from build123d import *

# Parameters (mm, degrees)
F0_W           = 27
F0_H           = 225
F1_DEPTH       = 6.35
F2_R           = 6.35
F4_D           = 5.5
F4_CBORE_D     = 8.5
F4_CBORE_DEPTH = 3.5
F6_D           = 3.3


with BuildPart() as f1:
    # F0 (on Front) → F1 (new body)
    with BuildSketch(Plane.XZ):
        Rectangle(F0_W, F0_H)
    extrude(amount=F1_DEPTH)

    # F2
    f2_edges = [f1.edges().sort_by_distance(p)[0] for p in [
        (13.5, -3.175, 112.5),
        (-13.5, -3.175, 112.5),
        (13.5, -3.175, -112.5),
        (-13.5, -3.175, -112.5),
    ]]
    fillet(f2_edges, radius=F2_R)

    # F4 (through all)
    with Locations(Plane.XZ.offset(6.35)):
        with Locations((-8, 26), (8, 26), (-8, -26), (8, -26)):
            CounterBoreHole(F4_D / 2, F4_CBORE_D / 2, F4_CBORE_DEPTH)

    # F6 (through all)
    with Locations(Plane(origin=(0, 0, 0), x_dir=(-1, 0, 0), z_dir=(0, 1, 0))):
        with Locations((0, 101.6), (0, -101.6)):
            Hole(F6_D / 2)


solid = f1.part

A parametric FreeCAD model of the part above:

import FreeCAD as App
import Part
import Sketcher
from FreeCAD import Vector
Q = App.Units.Quantity


def edges_at(feature, points):
    """Names of the edges that pass closest to the given points."""
    edges = feature.Shape.Edges
    near = lambda p: min(range(len(edges)), key=lambda i: edges[i].distToShape(Part.Vertex(*p))[0])
    return sorted({f"Edge{near(p) + 1}" for p in points})


def add_polygon(sketch, points):
    """Adds a closed chain of lines whose ends are joined by coincident constraints."""
    first, n = sketch.GeometryCount, len(points)
    for a, b in zip(points, points[1:] + points[:1]):
        sketch.addGeometry(Part.LineSegment(App.Vector(*a, 0), App.Vector(*b, 0)), False)
    for i in range(n):
        sketch.addConstraint(Sketcher.Constraint("Coincident", first + i, 2, first + (i + 1) % n, 1))

doc = App.newDocument("Part")
body = doc.addObject("PartDesign::Body", "Body")

# Sketch on XZ plane
sketch1 = body.newObject("Sketcher::SketchObject", "Sketch")
sketch1.AttachmentSupport = (doc.getObject("XZ_Plane"), [""])
sketch1.MapMode = "FlatFace"
add_polygon(sketch1, [(-14, 112), (-14, -112), (14, -112), (14, 112)])  # lines 0-3
sketch1.addConstraint(Sketcher.Constraint("Vertical", 0))
sketch1.addConstraint(Sketcher.Constraint("Horizontal", 1))
sketch1.addConstraint(Sketcher.Constraint("Vertical", 2))
sketch1.addConstraint(Sketcher.Constraint("Horizontal", 3))
sketch1.addConstraint(Sketcher.Constraint("Symmetric", 0, 2, 2, 2, -1, 1))
sketch1.addConstraint(Sketcher.Constraint("DistanceX", 1, 1, 1, 2, Q("27 mm")))
sketch1.addConstraint(Sketcher.Constraint("DistanceY", 0, 2, 0, 1, Q("225 mm")))
pad1 = body.newObject("PartDesign::Pad", "Pad")
pad1.Profile = sketch1
pad1.Length = 6.35
doc.recompute()

fillet = body.newObject("PartDesign::Fillet", "Fillet")
fillet.Base = (pad1, edges_at(pad1, [
    (13.5, -3.175, 112.5),
    (-13.5, -3.175, 112.5),
    (13.5, -3.175, -112.5),
    (-13.5, -3.175, -112.5),
]))
fillet.Radius = 6.35

# Sketch on XZ plane
sketch2 = body.newObject("Sketcher::SketchObject", "Sketch001")
sketch2.AttachmentSupport = (doc.getObject("XZ_Plane"), [""])
sketch2.MapMode = "FlatFace"
sketch2.AttachmentOffset = App.Placement(Vector(0, 0, 6.35), App.Rotation())
sketch2.addGeometry(Part.Circle(Vector(-8, 26, 0), Vector(0, 0, 1), 2.8), False)
sketch2.addGeometry(Part.Circle(Vector(8, 26, 0), Vector(0, 0, 1), 2.8), False)
sketch2.addGeometry(Part.Circle(Vector(-8, -26, 0), Vector(0, 0, 1), 2.8), False)
sketch2.addGeometry(Part.Circle(Vector(8, -26, 0), Vector(0, 0, 1), 2.8), False)
sketch2.addConstraint(Sketcher.Constraint("Equal", 0, 1))
sketch2.addConstraint(Sketcher.Constraint("Equal", 1, 2))
sketch2.addConstraint(Sketcher.Constraint("Equal", 2, 3))
sketch2.addConstraint(Sketcher.Constraint("Symmetric", 1, 3, 2, 3, -1, 1))
sketch2.addConstraint(Sketcher.Constraint("Symmetric", 0, 3, 3, 3, -1, 1))
sketch2.addConstraint(Sketcher.Constraint("Symmetric", 0, 3, 1, 3, -2))
sketch2.addConstraint(Sketcher.Constraint("Diameter", 0, Q("5.5 mm")))
sketch2.addConstraint(Sketcher.Constraint("DistanceX", 0, 3, -1, 1, Q("8 mm")))
sketch2.addConstraint(Sketcher.Constraint("DistanceY", -1, 1, 0, 3, Q("26 mm")))
doc.recompute()
hole = body.newObject("PartDesign::Hole", "Hole")
hole.Profile = sketch2
hole.ThreadType = "None"
hole.Diameter = 5.5
hole.DepthType = "ThroughAll"
hole.HoleCutType = "Counterbore"
hole.HoleCutDiameter = 8.5
hole.HoleCutDepth = 3.5

# Sketch on XZ plane
sketch3 = body.newObject("Sketcher::SketchObject", "Sketch002")
sketch3.AttachmentSupport = (doc.getObject("XZ_Plane"), [""])
sketch3.MapMode = "FlatFace"
sketch3.addGeometry(Part.Circle(Vector(0, 101.6, 0), Vector(0, 0, 1), 1.6), False)
sketch3.addGeometry(Part.Circle(Vector(0, -101.6, 0), Vector(0, 0, 1), 1.6), False)
sketch3.addConstraint(Sketcher.Constraint("Equal", 0, 1))
sketch3.addConstraint(Sketcher.Constraint("Symmetric", 0, 3, 1, 3, -1, 1))
sketch3.addConstraint(Sketcher.Constraint("PointOnObject", 0, 3, -2))
sketch3.addConstraint(Sketcher.Constraint("Diameter", 0, Q("3.3 mm")))
sketch3.addConstraint(Sketcher.Constraint("DistanceY", -1, 1, 0, 3, Q("101.6 mm")))
doc.recompute()
hole2 = body.newObject("PartDesign::Hole", "Hole001")
hole2.Profile = sketch3
hole2.ThreadType = "None"
hole2.Diameter = 3.3
hole2.DepthType = "ThroughAll"
hole2.Reversed = True

doc.recompute()
